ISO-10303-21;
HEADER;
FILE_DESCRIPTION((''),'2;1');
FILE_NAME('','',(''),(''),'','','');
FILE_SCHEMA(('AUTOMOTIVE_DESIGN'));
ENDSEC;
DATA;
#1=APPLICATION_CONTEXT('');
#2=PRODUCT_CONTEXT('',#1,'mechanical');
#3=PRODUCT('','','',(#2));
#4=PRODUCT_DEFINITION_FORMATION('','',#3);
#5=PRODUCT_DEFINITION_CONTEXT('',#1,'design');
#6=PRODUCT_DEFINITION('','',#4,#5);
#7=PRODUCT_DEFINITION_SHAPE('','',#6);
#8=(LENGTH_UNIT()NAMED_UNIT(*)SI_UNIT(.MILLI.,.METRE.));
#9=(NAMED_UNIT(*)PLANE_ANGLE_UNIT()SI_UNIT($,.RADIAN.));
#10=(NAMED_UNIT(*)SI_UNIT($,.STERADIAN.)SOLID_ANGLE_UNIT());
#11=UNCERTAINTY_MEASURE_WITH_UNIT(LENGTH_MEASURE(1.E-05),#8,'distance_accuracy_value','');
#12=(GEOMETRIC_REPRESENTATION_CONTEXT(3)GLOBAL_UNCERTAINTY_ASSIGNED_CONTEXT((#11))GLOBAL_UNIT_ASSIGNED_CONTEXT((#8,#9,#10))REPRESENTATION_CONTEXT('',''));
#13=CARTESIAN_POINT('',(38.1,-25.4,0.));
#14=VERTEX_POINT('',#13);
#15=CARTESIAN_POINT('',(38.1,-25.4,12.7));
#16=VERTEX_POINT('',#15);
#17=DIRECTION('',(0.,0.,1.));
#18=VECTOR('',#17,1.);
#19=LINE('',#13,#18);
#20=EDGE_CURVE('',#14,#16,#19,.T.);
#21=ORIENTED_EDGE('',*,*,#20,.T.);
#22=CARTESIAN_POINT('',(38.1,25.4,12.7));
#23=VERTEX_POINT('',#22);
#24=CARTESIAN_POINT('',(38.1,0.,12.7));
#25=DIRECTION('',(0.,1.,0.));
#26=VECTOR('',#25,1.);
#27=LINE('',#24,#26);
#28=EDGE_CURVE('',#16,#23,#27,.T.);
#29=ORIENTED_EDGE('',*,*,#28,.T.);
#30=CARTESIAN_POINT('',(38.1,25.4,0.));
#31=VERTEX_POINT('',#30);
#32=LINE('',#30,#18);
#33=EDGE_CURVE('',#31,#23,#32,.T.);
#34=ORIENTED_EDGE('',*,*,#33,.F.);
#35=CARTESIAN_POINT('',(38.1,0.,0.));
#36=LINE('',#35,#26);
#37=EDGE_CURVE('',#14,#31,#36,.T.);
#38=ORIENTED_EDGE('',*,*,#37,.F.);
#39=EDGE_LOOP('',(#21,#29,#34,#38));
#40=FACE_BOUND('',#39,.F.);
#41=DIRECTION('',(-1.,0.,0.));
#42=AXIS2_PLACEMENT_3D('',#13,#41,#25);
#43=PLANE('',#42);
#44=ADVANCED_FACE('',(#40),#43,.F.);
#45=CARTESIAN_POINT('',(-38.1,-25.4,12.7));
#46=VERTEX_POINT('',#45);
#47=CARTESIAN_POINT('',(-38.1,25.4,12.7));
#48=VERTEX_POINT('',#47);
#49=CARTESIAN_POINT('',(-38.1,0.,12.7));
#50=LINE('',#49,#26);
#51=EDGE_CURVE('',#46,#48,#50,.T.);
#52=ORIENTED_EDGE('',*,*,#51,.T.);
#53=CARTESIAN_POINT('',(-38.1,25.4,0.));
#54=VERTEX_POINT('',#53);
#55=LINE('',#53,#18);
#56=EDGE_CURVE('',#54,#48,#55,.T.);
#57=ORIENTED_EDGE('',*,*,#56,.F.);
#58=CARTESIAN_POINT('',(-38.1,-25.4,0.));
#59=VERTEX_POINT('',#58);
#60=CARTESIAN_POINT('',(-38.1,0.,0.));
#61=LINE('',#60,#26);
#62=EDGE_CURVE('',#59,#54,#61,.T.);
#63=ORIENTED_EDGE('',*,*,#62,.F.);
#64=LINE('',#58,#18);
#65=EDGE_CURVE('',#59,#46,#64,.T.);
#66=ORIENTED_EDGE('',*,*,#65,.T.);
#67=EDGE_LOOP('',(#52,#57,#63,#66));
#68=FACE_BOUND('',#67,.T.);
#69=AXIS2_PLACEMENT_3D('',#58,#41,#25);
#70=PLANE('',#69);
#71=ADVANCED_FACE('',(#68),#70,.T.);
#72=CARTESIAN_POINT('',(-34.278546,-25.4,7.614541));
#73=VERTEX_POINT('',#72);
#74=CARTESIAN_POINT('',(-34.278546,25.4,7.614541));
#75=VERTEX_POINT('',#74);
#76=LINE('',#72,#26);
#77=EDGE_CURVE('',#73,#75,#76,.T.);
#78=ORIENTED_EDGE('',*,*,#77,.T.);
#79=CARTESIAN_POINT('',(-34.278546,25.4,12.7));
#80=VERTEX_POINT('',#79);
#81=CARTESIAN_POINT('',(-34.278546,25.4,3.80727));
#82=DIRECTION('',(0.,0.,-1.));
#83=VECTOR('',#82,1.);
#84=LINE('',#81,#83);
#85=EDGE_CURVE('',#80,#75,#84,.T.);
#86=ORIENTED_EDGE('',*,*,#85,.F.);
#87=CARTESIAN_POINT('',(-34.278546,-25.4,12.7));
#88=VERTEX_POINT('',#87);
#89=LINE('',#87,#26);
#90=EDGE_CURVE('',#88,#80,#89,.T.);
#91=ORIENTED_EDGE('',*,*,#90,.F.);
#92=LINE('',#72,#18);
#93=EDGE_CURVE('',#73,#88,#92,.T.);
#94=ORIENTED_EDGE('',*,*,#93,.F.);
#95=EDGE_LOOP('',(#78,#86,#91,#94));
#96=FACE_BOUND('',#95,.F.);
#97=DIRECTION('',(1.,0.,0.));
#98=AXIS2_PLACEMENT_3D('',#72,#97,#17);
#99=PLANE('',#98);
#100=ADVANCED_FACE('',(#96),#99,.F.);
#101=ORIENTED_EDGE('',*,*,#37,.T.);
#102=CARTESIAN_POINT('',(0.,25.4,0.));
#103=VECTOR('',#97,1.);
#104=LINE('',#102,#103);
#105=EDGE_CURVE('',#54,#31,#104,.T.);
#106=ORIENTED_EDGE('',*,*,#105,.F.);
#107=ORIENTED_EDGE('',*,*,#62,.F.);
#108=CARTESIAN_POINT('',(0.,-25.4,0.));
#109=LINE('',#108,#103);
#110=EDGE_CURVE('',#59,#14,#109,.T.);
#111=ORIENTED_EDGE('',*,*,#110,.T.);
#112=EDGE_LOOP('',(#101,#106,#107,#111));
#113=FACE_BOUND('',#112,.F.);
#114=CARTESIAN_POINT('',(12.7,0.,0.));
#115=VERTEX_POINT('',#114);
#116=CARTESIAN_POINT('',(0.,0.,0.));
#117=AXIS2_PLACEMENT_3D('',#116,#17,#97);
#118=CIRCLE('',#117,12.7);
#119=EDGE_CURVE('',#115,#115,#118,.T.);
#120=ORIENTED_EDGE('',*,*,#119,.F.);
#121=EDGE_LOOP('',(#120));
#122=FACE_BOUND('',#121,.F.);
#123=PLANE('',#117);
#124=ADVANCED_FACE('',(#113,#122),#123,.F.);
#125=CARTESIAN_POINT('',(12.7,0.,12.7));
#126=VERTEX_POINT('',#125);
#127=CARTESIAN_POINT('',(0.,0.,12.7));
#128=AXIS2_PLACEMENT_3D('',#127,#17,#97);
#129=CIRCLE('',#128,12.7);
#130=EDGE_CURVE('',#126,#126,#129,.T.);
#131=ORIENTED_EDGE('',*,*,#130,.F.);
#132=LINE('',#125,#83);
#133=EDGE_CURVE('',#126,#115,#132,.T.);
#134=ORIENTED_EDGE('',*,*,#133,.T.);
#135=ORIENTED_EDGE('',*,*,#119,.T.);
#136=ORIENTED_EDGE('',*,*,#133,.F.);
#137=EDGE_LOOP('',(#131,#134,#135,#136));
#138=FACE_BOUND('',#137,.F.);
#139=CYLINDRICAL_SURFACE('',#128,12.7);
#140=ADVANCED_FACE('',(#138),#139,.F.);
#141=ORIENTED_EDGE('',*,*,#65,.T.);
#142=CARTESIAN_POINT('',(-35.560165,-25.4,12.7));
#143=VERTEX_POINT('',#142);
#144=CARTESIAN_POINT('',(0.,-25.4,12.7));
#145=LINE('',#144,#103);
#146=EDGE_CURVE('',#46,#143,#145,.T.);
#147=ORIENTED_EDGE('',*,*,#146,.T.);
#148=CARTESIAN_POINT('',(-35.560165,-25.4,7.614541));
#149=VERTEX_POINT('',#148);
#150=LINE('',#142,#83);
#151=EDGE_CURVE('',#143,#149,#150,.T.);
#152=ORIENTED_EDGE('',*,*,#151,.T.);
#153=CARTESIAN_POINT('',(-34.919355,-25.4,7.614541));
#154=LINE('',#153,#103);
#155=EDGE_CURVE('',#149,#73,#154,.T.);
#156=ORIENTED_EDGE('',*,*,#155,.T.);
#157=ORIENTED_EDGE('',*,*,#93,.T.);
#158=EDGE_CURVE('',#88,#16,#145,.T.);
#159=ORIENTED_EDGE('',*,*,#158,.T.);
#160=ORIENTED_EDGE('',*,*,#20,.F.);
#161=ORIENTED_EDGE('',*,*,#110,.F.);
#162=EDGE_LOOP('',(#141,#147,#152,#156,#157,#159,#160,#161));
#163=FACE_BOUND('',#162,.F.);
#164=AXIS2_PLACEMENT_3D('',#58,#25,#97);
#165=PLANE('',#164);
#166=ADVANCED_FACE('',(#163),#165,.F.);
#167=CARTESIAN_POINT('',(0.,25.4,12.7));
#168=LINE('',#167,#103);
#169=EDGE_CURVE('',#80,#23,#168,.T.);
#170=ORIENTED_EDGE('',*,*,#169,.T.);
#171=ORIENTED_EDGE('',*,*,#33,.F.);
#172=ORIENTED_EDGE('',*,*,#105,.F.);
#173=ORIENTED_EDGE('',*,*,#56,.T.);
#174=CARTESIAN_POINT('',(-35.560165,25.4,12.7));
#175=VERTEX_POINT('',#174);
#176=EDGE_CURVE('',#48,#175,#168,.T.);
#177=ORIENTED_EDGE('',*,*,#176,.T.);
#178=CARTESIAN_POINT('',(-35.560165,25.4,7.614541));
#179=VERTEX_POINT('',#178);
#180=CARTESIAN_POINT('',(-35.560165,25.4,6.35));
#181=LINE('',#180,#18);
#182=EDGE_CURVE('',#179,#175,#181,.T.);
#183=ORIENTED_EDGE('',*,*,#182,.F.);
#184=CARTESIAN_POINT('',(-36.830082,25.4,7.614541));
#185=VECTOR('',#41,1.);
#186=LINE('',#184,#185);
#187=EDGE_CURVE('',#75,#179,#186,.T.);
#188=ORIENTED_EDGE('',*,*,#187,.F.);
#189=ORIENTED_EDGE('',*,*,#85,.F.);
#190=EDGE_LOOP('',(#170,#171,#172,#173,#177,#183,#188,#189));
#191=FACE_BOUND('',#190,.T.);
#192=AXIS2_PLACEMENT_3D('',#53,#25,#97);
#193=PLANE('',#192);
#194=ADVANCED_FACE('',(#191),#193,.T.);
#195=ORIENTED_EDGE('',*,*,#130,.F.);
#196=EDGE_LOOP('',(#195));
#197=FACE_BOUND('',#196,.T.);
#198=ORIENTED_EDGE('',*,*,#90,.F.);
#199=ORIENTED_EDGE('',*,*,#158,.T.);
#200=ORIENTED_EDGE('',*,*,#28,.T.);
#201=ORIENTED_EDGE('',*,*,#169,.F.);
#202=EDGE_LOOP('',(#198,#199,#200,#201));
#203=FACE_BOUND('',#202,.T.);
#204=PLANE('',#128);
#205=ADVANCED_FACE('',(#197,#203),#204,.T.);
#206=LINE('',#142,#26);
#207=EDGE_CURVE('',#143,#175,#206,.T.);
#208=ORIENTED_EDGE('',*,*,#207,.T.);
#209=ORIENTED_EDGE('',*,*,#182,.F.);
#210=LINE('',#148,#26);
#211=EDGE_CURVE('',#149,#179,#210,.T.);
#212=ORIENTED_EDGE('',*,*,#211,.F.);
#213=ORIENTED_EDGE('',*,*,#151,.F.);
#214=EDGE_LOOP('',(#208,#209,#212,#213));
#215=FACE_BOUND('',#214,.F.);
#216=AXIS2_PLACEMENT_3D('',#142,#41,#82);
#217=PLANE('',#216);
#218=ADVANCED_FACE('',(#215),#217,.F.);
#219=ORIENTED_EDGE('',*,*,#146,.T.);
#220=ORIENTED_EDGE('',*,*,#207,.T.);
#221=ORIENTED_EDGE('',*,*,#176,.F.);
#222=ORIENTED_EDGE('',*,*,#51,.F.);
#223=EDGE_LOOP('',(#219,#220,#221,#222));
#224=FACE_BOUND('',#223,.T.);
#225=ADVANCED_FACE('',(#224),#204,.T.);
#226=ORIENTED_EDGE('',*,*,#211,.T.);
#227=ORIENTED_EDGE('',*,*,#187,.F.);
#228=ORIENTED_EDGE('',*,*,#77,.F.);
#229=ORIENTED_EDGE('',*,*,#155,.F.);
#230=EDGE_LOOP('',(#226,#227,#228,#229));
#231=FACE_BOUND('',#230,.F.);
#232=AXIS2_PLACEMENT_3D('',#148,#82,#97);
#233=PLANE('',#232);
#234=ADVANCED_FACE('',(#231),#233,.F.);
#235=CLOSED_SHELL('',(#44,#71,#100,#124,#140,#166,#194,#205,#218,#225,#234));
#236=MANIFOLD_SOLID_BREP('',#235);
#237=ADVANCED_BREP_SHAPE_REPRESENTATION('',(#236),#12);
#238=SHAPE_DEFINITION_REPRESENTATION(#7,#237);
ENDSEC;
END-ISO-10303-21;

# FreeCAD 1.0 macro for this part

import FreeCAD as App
import Part
import Sketcher
Q = App.Units.Quantity


def add_polygon(sketch, points):
    """Adds a closed chain of lines whose ends are joined by coincident constraints."""
    first, n = sketch.GeometryCount, len(points)
    for a, b in zip(points, points[1:] + points[:1]):
        sketch.addGeometry(Part.LineSegment(App.Vector(*a, 0), App.Vector(*b, 0)), False)
    for i in range(n):
        sketch.addConstraint(Sketcher.Constraint("Coincident", first + i, 2, first + (i + 1) % n, 1))

doc = App.newDocument("Part")
body = doc.addObject("PartDesign::Body", "Body")

sketch1 = body.newObject("Sketcher::SketchObject", "Sketch")
sketch1.AttachmentSupport = (doc.getObject("XY_Plane"), [""])
sketch1.MapMode = "FlatFace"
add_polygon(sketch1, [(-38, 25), (-38, -25), (38, -25), (38, 25)])
sketch1.addConstraint([
    Sketcher.Constraint("Vertical", 0),
    Sketcher.Constraint("Horizontal", 1),
    Sketcher.Constraint("Vertical", 2),
    Sketcher.Constraint("Horizontal", 3),
    Sketcher.Constraint("Symmetric", 0, 2, 2, 2, -1, 1),
    Sketcher.Constraint("DistanceX", 1, 1, 1, 2, Q("3 in")),
    Sketcher.Constraint("DistanceY", 0, 2, 0, 1, Q("2 in")),
])
pad1 = body.newObject("PartDesign::Pad", "Pad")
pad1.Profile = sketch1
pad1.Length = Q("0.5 in")

sketch2 = body.newObject("Sketcher::SketchObject", "Sketch001")
sketch2.AttachmentSupport = (doc.getObject("XY_Plane"), [""])
sketch2.MapMode = "FlatFace"
sketch2.AttachmentOffset = App.Placement(App.Vector(0, 0, 0.5 * 25.4), App.Rotation())
sketch2.addGeometry(Part.Circle(App.Vector(0, 0, 0), App.Vector(0, 0, 1), 13), False)
sketch2.addConstraint([
    Sketcher.Constraint("Coincident", 0, 3, -1, 1),
    Sketcher.Constraint("Diameter", 0, Q("1 in")),
])
pocket1 = body.newObject("PartDesign::Pocket", "Pocket")
pocket1.Profile = sketch2
pocket1.Length = Q("1 in")

sketch3 = body.newObject("Sketcher::SketchObject", "Sketch002")
sketch3.AttachmentSupport = (doc.getObject("XZ_Plane"), [""])
sketch3.MapMode = "FlatFace"
sketch3.AttachmentOffset = App.Placement(App.Vector(0, 0, 1 * 25.4), App.Rotation())
add_polygon(sketch3, [(-35.6, 12.7), (-35.6, 7.6), (-34.3, 7.6), (-34.3, 12.7)])
sketch3.addConstraint([
    Sketcher.Constraint("Vertical", 0),
    Sketcher.Constraint("Horizontal", 1),
    Sketcher.Constraint("Vertical", 2),
    Sketcher.Constraint("Horizontal", 3),
    Sketcher.Constraint("DistanceY", -1, 1, 2, 2, Q("0.5 in")),
    Sketcher.Constraint("DistanceX", 1, 1, 1, 2, Q("1.281619 mm")),
    Sketcher.Constraint("DistanceY", 0, 2, 0, 1, Q("5.085459 mm")),
    Sketcher.Constraint("DistanceX", 0, 2, -1, 1, Q("35.560165 mm")),
])
pocket2 = body.newObject("PartDesign::Pocket", "Pocket001")
pocket2.Profile = sketch3
pocket2.Length = Q("2.002 in")

doc.recompute()
